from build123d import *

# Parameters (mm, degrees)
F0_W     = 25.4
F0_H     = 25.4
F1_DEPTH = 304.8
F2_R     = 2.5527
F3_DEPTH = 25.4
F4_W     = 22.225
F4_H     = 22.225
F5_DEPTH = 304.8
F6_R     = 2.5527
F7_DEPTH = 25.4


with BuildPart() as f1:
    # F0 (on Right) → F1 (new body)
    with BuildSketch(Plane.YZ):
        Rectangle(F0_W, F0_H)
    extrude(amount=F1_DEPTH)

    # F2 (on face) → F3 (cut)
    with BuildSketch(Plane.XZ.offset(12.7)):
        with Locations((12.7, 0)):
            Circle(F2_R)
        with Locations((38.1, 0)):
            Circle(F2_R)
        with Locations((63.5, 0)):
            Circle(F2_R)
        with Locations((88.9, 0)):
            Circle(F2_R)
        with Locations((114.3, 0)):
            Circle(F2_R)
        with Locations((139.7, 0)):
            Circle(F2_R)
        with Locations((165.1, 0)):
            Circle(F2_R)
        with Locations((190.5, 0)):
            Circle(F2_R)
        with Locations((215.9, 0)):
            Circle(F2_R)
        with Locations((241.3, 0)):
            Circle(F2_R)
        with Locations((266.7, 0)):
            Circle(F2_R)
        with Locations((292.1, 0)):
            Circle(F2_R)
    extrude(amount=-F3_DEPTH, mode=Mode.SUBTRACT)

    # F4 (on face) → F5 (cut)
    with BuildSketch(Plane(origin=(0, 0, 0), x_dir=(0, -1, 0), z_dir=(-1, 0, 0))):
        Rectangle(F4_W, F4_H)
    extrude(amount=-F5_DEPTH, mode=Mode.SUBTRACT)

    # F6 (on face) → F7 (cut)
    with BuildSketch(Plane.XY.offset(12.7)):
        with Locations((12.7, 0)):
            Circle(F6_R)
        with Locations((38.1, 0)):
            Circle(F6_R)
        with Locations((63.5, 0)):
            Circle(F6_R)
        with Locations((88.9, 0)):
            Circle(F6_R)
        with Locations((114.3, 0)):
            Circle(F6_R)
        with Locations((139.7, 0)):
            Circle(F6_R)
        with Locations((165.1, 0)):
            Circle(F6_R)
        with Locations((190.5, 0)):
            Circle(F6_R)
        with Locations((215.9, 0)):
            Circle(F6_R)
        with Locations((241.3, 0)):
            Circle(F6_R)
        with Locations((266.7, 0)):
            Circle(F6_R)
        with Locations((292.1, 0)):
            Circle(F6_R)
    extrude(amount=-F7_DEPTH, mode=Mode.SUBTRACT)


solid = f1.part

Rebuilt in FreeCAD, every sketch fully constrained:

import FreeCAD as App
import Part
import Sketcher
Q = App.Units.Quantity


def add_polygon(sketch, points):
    """Adds a closed chain of lines whose ends are joined by coincident constraints."""
    first, n = sketch.GeometryCount, len(points)
    for a, b in zip(points, points[1:] + points[:1]):
        sketch.addGeometry(Part.LineSegment(App.Vector(*a, 0), App.Vector(*b, 0)), False)
    for i in range(n):
        sketch.addConstraint(Sketcher.Constraint("Coincident", first + i, 2, first + (i + 1) % n, 1))

doc = App.newDocument("Part")
body = doc.addObject("PartDesign::Body", "Body")

sketch1 = body.newObject("Sketcher::SketchObject", "Sketch")
sketch1.AttachmentSupport = (doc.getObject("YZ_Plane"), [""])
sketch1.MapMode = "FlatFace"
add_polygon(sketch1, [(-13, 13), (-13, -13), (13, -13), (13, 13)])
sketch1.addConstraint([
    Sketcher.Constraint("Vertical", 0),
    Sketcher.Constraint("Horizontal", 1),
    Sketcher.Constraint("Vertical", 2),
    Sketcher.Constraint("Horizontal", 3),
    Sketcher.Constraint("Symmetric", 0, 2, 2, 2, -1, 1),
    Sketcher.Constraint("Equal", 3, 0),
    Sketcher.Constraint("DistanceX", 1, 1, 1, 2, Q("1 in")),
])
pad1 = body.newObject("PartDesign::Pad", "Pad")
pad1.Profile = sketch1
pad1.Length = Q("12 in")

sketch2 = body.newObject("Sketcher::SketchObject", "Sketch001")
sketch2.AttachmentSupport = (doc.getObject("XZ_Plane"), [""])
sketch2.MapMode = "FlatFace"
sketch2.AttachmentOffset = App.Placement(App.Vector(0, 0, 0.5 * 25.4), App.Rotation())
sketch2.addGeometry([
    Part.Circle(App.Vector(12.7, 0, 0), App.Vector(0, 0, 1), 2.6),
    Part.Circle(App.Vector(38.1, 0, 0), App.Vector(0, 0, 1), 2.6),
    Part.Circle(App.Vector(63.5, 0, 0), App.Vector(0, 0, 1), 2.6),
    Part.Circle(App.Vector(88.9, 0, 0), App.Vector(0, 0, 1), 2.6),
    Part.Circle(App.Vector(114.3, 0, 0), App.Vector(0, 0, 1), 2.6),
    Part.Circle(App.Vector(139.7, 0, 0), App.Vector(0, 0, 1), 2.6),
    Part.Circle(App.Vector(165.1, 0, 0), App.Vector(0, 0, 1), 2.6),
    Part.Circle(App.Vector(190.5, 0, 0), App.Vector(0, 0, 1), 2.6),
    Part.Circle(App.Vector(215.9, 0, 0), App.Vector(0, 0, 1), 2.6),
    Part.Circle(App.Vector(241.3, 0, 0), App.Vector(0, 0, 1), 2.6),
    Part.Circle(App.Vector(266.7, 0, 0), App.Vector(0, 0, 1), 2.6),
    Part.Circle(App.Vector(292.1, 0, 0), App.Vector(0, 0, 1), 2.6),
], False)
sketch2.addConstraint([
    Sketcher.Constraint("Equal", 0, 1),
    Sketcher.Constraint("Equal", 1, 2),
    Sketcher.Constraint("Equal", 2, 3),
    Sketcher.Constraint("Equal", 3, 4),
    Sketcher.Constraint("Equal", 4, 5),
    Sketcher.Constraint("Equal", 5, 6),
    Sketcher.Constraint("Equal", 6, 7),
    Sketcher.Constraint("Equal", 7, 8),
    Sketcher.Constraint("Equal", 8, 9),
    Sketcher.Constraint("Equal", 9, 10),
    Sketcher.Constraint("Equal", 10, 11),
    Sketcher.Constraint("PointOnObject", 0, 3, -1),
    Sketcher.Constraint("PointOnObject", 1, 3, -1),
    Sketcher.Constraint("PointOnObject", 2, 3, -1),
    Sketcher.Constraint("PointOnObject", 3, 3, -1),
    Sketcher.Constraint("PointOnObject", 4, 3, -1),
    Sketcher.Constraint("PointOnObject", 5, 3, -1),
    Sketcher.Constraint("PointOnObject", 6, 3, -1),
    Sketcher.Constraint("PointOnObject", 7, 3, -1),
    Sketcher.Constraint("PointOnObject", 8, 3, -1),
    Sketcher.Constraint("PointOnObject", 9, 3, -1),
    Sketcher.Constraint("PointOnObject", 10, 3, -1),
    Sketcher.Constraint("PointOnObject", 11, 3, -1),
    Sketcher.Constraint("Diameter", 0, Q("0.201 in")),
    Sketcher.Constraint("DistanceX", 0, 3, 1, 3, Q("1 in")),
    Sketcher.Constraint("DistanceX", 1, 3, 2, 3, Q("1 in")),
    Sketcher.Constraint("DistanceX", 2, 3, 3, 3, Q("1 in")),
    Sketcher.Constraint("DistanceX", 3, 3, 4, 3, Q("1 in")),
    Sketcher.Constraint("DistanceX", 4, 3, 5, 3, Q("1 in")),
    Sketcher.Constraint("DistanceX", 5, 3, 6, 3, Q("1 in")),
    Sketcher.Constraint("DistanceX", 6, 3, 7, 3, Q("1 in")),
    Sketcher.Constraint("DistanceX", 7, 3, 8, 3, Q("1 in")),
    Sketcher.Constraint("DistanceX", 8, 3, 9, 3, Q("1 in")),
    Sketcher.Constraint("DistanceX", 9, 3, 10, 3, Q("1 in")),
    Sketcher.Constraint("DistanceX", 10, 3, 11, 3, Q("1 in")),
    Sketcher.Constraint("DistanceX", -1, 1, 0, 3, Q("0.5 in")),
])
pocket1 = body.newObject("PartDesign::Pocket", "Pocket")
pocket1.Profile = sketch2
pocket1.Length = Q("1 in")

sketch3 = body.newObject("Sketcher::SketchObject", "Sketch002")
sketch3.AttachmentSupport = (doc.getObject("YZ_Plane"), [""])
sketch3.MapMode = "FlatFace"
add_polygon(sketch3, [(11, 11), (11, -11), (-11, -11), (-11, 11)])
sketch3.addConstraint([
    Sketcher.Constraint("Vertical", 0),
    Sketcher.Constraint("Horizontal", 1),
    Sketcher.Constraint("Vertical", 2),
    Sketcher.Constraint("Horizontal", 3),
    Sketcher.Constraint("Symmetric", 0, 2, 2, 2, -1, 1),
    Sketcher.Constraint("Equal", 3, 0),
    Sketcher.Constraint("DistanceX", 1, 2, 1, 1, Q("0.875 in")),
])
pocket2 = body.newObject("PartDesign::Pocket", "Pocket001")
pocket2.Profile = sketch3
pocket2.Length = Q("12 in")
pocket2.Reversed = True

sketch4 = body.newObject("Sketcher::SketchObject", "Sketch003")
sketch4.AttachmentSupport = (doc.getObject("XY_Plane"), [""])
sketch4.MapMode = "FlatFace"
sketch4.AttachmentOffset = App.Placement(App.Vector(0, 0, 0.5 * 25.4), App.Rotation())
sketch4.addGeometry([
    Part.Circle(App.Vector(12.7, 0, 0), App.Vector(0, 0, 1), 2.6),
    Part.Circle(App.Vector(38.1, 0, 0), App.Vector(0, 0, 1), 2.6),
    Part.Circle(App.Vector(63.5, 0, 0), App.Vector(0, 0, 1), 2.6),
    Part.Circle(App.Vector(88.9, 0, 0), App.Vector(0, 0, 1), 2.6),
    Part.Circle(App.Vector(114.3, 0, 0), App.Vector(0, 0, 1), 2.6),
    Part.Circle(App.Vector(139.7, 0, 0), App.Vector(0, 0, 1), 2.6),
    Part.Circle(App.Vector(165.1, 0, 0), App.Vector(0, 0, 1), 2.6),
    Part.Circle(App.Vector(190.5, 0, 0), App.Vector(0, 0, 1), 2.6),
    Part.Circle(App.Vector(215.9, 0, 0), App.Vector(0, 0, 1), 2.6),
    Part.Circle(App.Vector(241.3, 0, 0), App.Vector(0, 0, 1), 2.6),
    Part.Circle(App.Vector(266.7, 0, 0), App.Vector(0, 0, 1), 2.6),
    Part.Circle(App.Vector(292.1, 0, 0), App.Vector(0, 0, 1), 2.6),
], False)
sketch4.addConstraint([
    Sketcher.Constraint("Equal", 0, 1),
    Sketcher.Constraint("Equal", 1, 2),
    Sketcher.Constraint("Equal", 2, 3),
    Sketcher.Constraint("Equal", 3, 4),
    Sketcher.Constraint("Equal", 4, 5),
    Sketcher.Constraint("Equal", 5, 6),
    Sketcher.Constraint("Equal", 6, 7),
    Sketcher.Constraint("Equal", 7, 8),
    Sketcher.Constraint("Equal", 8, 9),
    Sketcher.Constraint("Equal", 9, 10),
    Sketcher.Constraint("Equal", 10, 11),
    Sketcher.Constraint("PointOnObject", 0, 3, -1),
    Sketcher.Constraint("PointOnObject", 1, 3, -1),
    Sketcher.Constraint("PointOnObject", 2, 3, -1),
    Sketcher.Constraint("PointOnObject", 3, 3, -1),
    Sketcher.Constraint("PointOnObject", 4, 3, -1),
    Sketcher.Constraint("PointOnObject", 5, 3, -1),
    Sketcher.Constraint("PointOnObject", 6, 3, -1),
    Sketcher.Constraint("PointOnObject", 7, 3, -1),
    Sketcher.Constraint("PointOnObject", 8, 3, -1),
    Sketcher.Constraint("PointOnObject", 9, 3, -1),
    Sketcher.Constraint("PointOnObject", 10, 3, -1),
    Sketcher.Constraint("PointOnObject", 11, 3, -1),
    Sketcher.Constraint("Diameter", 0, Q("0.201 in")),
    Sketcher.Constraint("DistanceX", 0, 3, 1, 3, Q("1 in")),
    Sketcher.Constraint("DistanceX", 1, 3, 2, 3, Q("1 in")),
    Sketcher.Constraint("DistanceX", 2, 3, 3, 3, Q("1 in")),
    Sketcher.Constraint("DistanceX", 3, 3, 4, 3, Q("1 in")),
    Sketcher.Constraint("DistanceX", 4, 3, 5, 3, Q("1 in")),
    Sketcher.Constraint("DistanceX", 5, 3, 6, 3, Q("1 in")),
    Sketcher.Constraint("DistanceX", 6, 3, 7, 3, Q("1 in")),
    Sketcher.Constraint("DistanceX", 7, 3, 8, 3, Q("1 in")),
    Sketcher.Constraint("DistanceX", 8, 3, 9, 3, Q("1 in")),
    Sketcher.Constraint("DistanceX", 9, 3, 10, 3, Q("1 in")),
    Sketcher.Constraint("DistanceX", 10, 3, 11, 3, Q("1 in")),
    Sketcher.Constraint("DistanceX", -1, 1, 0, 3, Q("0.5 in")),
])
pocket3 = body.newObject("PartDesign::Pocket", "Pocket002")
pocket3.Profile = sketch4
pocket3.Length = Q("1 in")

doc.recompute()
